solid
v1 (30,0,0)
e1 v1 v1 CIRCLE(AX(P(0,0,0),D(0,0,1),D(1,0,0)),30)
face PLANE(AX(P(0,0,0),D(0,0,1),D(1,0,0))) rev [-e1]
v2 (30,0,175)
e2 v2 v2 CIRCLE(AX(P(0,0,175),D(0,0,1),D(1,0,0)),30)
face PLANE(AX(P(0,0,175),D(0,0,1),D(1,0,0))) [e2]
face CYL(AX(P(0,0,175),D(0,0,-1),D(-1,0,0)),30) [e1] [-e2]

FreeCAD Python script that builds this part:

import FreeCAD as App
import Part
import Sketcher
from FreeCAD import Vector
Q = App.Units.Quantity

doc = App.newDocument("Part")
body = doc.addObject("PartDesign::Body", "Body")

# Sketch on XY plane
sketch1 = body.newObject("Sketcher::SketchObject", "Sketch")
sketch1.AttachmentSupport = (doc.getObject("XY_Plane"), [""])
sketch1.MapMode = "FlatFace"
sketch1.addGeometry(Part.Circle(Vector(0, 0, 0), Vector(0, 0, 1), 30), False)
sketch1.addConstraint(Sketcher.Constraint("Coincident", 0, 3, -1, 1))
sketch1.addConstraint(Sketcher.Constraint("Diameter", 0, Q("60 mm")))
pad1 = body.newObject("PartDesign::Pad", "Pad")
pad1.Profile = sketch1
pad1.Length = 175

doc.recompute()
